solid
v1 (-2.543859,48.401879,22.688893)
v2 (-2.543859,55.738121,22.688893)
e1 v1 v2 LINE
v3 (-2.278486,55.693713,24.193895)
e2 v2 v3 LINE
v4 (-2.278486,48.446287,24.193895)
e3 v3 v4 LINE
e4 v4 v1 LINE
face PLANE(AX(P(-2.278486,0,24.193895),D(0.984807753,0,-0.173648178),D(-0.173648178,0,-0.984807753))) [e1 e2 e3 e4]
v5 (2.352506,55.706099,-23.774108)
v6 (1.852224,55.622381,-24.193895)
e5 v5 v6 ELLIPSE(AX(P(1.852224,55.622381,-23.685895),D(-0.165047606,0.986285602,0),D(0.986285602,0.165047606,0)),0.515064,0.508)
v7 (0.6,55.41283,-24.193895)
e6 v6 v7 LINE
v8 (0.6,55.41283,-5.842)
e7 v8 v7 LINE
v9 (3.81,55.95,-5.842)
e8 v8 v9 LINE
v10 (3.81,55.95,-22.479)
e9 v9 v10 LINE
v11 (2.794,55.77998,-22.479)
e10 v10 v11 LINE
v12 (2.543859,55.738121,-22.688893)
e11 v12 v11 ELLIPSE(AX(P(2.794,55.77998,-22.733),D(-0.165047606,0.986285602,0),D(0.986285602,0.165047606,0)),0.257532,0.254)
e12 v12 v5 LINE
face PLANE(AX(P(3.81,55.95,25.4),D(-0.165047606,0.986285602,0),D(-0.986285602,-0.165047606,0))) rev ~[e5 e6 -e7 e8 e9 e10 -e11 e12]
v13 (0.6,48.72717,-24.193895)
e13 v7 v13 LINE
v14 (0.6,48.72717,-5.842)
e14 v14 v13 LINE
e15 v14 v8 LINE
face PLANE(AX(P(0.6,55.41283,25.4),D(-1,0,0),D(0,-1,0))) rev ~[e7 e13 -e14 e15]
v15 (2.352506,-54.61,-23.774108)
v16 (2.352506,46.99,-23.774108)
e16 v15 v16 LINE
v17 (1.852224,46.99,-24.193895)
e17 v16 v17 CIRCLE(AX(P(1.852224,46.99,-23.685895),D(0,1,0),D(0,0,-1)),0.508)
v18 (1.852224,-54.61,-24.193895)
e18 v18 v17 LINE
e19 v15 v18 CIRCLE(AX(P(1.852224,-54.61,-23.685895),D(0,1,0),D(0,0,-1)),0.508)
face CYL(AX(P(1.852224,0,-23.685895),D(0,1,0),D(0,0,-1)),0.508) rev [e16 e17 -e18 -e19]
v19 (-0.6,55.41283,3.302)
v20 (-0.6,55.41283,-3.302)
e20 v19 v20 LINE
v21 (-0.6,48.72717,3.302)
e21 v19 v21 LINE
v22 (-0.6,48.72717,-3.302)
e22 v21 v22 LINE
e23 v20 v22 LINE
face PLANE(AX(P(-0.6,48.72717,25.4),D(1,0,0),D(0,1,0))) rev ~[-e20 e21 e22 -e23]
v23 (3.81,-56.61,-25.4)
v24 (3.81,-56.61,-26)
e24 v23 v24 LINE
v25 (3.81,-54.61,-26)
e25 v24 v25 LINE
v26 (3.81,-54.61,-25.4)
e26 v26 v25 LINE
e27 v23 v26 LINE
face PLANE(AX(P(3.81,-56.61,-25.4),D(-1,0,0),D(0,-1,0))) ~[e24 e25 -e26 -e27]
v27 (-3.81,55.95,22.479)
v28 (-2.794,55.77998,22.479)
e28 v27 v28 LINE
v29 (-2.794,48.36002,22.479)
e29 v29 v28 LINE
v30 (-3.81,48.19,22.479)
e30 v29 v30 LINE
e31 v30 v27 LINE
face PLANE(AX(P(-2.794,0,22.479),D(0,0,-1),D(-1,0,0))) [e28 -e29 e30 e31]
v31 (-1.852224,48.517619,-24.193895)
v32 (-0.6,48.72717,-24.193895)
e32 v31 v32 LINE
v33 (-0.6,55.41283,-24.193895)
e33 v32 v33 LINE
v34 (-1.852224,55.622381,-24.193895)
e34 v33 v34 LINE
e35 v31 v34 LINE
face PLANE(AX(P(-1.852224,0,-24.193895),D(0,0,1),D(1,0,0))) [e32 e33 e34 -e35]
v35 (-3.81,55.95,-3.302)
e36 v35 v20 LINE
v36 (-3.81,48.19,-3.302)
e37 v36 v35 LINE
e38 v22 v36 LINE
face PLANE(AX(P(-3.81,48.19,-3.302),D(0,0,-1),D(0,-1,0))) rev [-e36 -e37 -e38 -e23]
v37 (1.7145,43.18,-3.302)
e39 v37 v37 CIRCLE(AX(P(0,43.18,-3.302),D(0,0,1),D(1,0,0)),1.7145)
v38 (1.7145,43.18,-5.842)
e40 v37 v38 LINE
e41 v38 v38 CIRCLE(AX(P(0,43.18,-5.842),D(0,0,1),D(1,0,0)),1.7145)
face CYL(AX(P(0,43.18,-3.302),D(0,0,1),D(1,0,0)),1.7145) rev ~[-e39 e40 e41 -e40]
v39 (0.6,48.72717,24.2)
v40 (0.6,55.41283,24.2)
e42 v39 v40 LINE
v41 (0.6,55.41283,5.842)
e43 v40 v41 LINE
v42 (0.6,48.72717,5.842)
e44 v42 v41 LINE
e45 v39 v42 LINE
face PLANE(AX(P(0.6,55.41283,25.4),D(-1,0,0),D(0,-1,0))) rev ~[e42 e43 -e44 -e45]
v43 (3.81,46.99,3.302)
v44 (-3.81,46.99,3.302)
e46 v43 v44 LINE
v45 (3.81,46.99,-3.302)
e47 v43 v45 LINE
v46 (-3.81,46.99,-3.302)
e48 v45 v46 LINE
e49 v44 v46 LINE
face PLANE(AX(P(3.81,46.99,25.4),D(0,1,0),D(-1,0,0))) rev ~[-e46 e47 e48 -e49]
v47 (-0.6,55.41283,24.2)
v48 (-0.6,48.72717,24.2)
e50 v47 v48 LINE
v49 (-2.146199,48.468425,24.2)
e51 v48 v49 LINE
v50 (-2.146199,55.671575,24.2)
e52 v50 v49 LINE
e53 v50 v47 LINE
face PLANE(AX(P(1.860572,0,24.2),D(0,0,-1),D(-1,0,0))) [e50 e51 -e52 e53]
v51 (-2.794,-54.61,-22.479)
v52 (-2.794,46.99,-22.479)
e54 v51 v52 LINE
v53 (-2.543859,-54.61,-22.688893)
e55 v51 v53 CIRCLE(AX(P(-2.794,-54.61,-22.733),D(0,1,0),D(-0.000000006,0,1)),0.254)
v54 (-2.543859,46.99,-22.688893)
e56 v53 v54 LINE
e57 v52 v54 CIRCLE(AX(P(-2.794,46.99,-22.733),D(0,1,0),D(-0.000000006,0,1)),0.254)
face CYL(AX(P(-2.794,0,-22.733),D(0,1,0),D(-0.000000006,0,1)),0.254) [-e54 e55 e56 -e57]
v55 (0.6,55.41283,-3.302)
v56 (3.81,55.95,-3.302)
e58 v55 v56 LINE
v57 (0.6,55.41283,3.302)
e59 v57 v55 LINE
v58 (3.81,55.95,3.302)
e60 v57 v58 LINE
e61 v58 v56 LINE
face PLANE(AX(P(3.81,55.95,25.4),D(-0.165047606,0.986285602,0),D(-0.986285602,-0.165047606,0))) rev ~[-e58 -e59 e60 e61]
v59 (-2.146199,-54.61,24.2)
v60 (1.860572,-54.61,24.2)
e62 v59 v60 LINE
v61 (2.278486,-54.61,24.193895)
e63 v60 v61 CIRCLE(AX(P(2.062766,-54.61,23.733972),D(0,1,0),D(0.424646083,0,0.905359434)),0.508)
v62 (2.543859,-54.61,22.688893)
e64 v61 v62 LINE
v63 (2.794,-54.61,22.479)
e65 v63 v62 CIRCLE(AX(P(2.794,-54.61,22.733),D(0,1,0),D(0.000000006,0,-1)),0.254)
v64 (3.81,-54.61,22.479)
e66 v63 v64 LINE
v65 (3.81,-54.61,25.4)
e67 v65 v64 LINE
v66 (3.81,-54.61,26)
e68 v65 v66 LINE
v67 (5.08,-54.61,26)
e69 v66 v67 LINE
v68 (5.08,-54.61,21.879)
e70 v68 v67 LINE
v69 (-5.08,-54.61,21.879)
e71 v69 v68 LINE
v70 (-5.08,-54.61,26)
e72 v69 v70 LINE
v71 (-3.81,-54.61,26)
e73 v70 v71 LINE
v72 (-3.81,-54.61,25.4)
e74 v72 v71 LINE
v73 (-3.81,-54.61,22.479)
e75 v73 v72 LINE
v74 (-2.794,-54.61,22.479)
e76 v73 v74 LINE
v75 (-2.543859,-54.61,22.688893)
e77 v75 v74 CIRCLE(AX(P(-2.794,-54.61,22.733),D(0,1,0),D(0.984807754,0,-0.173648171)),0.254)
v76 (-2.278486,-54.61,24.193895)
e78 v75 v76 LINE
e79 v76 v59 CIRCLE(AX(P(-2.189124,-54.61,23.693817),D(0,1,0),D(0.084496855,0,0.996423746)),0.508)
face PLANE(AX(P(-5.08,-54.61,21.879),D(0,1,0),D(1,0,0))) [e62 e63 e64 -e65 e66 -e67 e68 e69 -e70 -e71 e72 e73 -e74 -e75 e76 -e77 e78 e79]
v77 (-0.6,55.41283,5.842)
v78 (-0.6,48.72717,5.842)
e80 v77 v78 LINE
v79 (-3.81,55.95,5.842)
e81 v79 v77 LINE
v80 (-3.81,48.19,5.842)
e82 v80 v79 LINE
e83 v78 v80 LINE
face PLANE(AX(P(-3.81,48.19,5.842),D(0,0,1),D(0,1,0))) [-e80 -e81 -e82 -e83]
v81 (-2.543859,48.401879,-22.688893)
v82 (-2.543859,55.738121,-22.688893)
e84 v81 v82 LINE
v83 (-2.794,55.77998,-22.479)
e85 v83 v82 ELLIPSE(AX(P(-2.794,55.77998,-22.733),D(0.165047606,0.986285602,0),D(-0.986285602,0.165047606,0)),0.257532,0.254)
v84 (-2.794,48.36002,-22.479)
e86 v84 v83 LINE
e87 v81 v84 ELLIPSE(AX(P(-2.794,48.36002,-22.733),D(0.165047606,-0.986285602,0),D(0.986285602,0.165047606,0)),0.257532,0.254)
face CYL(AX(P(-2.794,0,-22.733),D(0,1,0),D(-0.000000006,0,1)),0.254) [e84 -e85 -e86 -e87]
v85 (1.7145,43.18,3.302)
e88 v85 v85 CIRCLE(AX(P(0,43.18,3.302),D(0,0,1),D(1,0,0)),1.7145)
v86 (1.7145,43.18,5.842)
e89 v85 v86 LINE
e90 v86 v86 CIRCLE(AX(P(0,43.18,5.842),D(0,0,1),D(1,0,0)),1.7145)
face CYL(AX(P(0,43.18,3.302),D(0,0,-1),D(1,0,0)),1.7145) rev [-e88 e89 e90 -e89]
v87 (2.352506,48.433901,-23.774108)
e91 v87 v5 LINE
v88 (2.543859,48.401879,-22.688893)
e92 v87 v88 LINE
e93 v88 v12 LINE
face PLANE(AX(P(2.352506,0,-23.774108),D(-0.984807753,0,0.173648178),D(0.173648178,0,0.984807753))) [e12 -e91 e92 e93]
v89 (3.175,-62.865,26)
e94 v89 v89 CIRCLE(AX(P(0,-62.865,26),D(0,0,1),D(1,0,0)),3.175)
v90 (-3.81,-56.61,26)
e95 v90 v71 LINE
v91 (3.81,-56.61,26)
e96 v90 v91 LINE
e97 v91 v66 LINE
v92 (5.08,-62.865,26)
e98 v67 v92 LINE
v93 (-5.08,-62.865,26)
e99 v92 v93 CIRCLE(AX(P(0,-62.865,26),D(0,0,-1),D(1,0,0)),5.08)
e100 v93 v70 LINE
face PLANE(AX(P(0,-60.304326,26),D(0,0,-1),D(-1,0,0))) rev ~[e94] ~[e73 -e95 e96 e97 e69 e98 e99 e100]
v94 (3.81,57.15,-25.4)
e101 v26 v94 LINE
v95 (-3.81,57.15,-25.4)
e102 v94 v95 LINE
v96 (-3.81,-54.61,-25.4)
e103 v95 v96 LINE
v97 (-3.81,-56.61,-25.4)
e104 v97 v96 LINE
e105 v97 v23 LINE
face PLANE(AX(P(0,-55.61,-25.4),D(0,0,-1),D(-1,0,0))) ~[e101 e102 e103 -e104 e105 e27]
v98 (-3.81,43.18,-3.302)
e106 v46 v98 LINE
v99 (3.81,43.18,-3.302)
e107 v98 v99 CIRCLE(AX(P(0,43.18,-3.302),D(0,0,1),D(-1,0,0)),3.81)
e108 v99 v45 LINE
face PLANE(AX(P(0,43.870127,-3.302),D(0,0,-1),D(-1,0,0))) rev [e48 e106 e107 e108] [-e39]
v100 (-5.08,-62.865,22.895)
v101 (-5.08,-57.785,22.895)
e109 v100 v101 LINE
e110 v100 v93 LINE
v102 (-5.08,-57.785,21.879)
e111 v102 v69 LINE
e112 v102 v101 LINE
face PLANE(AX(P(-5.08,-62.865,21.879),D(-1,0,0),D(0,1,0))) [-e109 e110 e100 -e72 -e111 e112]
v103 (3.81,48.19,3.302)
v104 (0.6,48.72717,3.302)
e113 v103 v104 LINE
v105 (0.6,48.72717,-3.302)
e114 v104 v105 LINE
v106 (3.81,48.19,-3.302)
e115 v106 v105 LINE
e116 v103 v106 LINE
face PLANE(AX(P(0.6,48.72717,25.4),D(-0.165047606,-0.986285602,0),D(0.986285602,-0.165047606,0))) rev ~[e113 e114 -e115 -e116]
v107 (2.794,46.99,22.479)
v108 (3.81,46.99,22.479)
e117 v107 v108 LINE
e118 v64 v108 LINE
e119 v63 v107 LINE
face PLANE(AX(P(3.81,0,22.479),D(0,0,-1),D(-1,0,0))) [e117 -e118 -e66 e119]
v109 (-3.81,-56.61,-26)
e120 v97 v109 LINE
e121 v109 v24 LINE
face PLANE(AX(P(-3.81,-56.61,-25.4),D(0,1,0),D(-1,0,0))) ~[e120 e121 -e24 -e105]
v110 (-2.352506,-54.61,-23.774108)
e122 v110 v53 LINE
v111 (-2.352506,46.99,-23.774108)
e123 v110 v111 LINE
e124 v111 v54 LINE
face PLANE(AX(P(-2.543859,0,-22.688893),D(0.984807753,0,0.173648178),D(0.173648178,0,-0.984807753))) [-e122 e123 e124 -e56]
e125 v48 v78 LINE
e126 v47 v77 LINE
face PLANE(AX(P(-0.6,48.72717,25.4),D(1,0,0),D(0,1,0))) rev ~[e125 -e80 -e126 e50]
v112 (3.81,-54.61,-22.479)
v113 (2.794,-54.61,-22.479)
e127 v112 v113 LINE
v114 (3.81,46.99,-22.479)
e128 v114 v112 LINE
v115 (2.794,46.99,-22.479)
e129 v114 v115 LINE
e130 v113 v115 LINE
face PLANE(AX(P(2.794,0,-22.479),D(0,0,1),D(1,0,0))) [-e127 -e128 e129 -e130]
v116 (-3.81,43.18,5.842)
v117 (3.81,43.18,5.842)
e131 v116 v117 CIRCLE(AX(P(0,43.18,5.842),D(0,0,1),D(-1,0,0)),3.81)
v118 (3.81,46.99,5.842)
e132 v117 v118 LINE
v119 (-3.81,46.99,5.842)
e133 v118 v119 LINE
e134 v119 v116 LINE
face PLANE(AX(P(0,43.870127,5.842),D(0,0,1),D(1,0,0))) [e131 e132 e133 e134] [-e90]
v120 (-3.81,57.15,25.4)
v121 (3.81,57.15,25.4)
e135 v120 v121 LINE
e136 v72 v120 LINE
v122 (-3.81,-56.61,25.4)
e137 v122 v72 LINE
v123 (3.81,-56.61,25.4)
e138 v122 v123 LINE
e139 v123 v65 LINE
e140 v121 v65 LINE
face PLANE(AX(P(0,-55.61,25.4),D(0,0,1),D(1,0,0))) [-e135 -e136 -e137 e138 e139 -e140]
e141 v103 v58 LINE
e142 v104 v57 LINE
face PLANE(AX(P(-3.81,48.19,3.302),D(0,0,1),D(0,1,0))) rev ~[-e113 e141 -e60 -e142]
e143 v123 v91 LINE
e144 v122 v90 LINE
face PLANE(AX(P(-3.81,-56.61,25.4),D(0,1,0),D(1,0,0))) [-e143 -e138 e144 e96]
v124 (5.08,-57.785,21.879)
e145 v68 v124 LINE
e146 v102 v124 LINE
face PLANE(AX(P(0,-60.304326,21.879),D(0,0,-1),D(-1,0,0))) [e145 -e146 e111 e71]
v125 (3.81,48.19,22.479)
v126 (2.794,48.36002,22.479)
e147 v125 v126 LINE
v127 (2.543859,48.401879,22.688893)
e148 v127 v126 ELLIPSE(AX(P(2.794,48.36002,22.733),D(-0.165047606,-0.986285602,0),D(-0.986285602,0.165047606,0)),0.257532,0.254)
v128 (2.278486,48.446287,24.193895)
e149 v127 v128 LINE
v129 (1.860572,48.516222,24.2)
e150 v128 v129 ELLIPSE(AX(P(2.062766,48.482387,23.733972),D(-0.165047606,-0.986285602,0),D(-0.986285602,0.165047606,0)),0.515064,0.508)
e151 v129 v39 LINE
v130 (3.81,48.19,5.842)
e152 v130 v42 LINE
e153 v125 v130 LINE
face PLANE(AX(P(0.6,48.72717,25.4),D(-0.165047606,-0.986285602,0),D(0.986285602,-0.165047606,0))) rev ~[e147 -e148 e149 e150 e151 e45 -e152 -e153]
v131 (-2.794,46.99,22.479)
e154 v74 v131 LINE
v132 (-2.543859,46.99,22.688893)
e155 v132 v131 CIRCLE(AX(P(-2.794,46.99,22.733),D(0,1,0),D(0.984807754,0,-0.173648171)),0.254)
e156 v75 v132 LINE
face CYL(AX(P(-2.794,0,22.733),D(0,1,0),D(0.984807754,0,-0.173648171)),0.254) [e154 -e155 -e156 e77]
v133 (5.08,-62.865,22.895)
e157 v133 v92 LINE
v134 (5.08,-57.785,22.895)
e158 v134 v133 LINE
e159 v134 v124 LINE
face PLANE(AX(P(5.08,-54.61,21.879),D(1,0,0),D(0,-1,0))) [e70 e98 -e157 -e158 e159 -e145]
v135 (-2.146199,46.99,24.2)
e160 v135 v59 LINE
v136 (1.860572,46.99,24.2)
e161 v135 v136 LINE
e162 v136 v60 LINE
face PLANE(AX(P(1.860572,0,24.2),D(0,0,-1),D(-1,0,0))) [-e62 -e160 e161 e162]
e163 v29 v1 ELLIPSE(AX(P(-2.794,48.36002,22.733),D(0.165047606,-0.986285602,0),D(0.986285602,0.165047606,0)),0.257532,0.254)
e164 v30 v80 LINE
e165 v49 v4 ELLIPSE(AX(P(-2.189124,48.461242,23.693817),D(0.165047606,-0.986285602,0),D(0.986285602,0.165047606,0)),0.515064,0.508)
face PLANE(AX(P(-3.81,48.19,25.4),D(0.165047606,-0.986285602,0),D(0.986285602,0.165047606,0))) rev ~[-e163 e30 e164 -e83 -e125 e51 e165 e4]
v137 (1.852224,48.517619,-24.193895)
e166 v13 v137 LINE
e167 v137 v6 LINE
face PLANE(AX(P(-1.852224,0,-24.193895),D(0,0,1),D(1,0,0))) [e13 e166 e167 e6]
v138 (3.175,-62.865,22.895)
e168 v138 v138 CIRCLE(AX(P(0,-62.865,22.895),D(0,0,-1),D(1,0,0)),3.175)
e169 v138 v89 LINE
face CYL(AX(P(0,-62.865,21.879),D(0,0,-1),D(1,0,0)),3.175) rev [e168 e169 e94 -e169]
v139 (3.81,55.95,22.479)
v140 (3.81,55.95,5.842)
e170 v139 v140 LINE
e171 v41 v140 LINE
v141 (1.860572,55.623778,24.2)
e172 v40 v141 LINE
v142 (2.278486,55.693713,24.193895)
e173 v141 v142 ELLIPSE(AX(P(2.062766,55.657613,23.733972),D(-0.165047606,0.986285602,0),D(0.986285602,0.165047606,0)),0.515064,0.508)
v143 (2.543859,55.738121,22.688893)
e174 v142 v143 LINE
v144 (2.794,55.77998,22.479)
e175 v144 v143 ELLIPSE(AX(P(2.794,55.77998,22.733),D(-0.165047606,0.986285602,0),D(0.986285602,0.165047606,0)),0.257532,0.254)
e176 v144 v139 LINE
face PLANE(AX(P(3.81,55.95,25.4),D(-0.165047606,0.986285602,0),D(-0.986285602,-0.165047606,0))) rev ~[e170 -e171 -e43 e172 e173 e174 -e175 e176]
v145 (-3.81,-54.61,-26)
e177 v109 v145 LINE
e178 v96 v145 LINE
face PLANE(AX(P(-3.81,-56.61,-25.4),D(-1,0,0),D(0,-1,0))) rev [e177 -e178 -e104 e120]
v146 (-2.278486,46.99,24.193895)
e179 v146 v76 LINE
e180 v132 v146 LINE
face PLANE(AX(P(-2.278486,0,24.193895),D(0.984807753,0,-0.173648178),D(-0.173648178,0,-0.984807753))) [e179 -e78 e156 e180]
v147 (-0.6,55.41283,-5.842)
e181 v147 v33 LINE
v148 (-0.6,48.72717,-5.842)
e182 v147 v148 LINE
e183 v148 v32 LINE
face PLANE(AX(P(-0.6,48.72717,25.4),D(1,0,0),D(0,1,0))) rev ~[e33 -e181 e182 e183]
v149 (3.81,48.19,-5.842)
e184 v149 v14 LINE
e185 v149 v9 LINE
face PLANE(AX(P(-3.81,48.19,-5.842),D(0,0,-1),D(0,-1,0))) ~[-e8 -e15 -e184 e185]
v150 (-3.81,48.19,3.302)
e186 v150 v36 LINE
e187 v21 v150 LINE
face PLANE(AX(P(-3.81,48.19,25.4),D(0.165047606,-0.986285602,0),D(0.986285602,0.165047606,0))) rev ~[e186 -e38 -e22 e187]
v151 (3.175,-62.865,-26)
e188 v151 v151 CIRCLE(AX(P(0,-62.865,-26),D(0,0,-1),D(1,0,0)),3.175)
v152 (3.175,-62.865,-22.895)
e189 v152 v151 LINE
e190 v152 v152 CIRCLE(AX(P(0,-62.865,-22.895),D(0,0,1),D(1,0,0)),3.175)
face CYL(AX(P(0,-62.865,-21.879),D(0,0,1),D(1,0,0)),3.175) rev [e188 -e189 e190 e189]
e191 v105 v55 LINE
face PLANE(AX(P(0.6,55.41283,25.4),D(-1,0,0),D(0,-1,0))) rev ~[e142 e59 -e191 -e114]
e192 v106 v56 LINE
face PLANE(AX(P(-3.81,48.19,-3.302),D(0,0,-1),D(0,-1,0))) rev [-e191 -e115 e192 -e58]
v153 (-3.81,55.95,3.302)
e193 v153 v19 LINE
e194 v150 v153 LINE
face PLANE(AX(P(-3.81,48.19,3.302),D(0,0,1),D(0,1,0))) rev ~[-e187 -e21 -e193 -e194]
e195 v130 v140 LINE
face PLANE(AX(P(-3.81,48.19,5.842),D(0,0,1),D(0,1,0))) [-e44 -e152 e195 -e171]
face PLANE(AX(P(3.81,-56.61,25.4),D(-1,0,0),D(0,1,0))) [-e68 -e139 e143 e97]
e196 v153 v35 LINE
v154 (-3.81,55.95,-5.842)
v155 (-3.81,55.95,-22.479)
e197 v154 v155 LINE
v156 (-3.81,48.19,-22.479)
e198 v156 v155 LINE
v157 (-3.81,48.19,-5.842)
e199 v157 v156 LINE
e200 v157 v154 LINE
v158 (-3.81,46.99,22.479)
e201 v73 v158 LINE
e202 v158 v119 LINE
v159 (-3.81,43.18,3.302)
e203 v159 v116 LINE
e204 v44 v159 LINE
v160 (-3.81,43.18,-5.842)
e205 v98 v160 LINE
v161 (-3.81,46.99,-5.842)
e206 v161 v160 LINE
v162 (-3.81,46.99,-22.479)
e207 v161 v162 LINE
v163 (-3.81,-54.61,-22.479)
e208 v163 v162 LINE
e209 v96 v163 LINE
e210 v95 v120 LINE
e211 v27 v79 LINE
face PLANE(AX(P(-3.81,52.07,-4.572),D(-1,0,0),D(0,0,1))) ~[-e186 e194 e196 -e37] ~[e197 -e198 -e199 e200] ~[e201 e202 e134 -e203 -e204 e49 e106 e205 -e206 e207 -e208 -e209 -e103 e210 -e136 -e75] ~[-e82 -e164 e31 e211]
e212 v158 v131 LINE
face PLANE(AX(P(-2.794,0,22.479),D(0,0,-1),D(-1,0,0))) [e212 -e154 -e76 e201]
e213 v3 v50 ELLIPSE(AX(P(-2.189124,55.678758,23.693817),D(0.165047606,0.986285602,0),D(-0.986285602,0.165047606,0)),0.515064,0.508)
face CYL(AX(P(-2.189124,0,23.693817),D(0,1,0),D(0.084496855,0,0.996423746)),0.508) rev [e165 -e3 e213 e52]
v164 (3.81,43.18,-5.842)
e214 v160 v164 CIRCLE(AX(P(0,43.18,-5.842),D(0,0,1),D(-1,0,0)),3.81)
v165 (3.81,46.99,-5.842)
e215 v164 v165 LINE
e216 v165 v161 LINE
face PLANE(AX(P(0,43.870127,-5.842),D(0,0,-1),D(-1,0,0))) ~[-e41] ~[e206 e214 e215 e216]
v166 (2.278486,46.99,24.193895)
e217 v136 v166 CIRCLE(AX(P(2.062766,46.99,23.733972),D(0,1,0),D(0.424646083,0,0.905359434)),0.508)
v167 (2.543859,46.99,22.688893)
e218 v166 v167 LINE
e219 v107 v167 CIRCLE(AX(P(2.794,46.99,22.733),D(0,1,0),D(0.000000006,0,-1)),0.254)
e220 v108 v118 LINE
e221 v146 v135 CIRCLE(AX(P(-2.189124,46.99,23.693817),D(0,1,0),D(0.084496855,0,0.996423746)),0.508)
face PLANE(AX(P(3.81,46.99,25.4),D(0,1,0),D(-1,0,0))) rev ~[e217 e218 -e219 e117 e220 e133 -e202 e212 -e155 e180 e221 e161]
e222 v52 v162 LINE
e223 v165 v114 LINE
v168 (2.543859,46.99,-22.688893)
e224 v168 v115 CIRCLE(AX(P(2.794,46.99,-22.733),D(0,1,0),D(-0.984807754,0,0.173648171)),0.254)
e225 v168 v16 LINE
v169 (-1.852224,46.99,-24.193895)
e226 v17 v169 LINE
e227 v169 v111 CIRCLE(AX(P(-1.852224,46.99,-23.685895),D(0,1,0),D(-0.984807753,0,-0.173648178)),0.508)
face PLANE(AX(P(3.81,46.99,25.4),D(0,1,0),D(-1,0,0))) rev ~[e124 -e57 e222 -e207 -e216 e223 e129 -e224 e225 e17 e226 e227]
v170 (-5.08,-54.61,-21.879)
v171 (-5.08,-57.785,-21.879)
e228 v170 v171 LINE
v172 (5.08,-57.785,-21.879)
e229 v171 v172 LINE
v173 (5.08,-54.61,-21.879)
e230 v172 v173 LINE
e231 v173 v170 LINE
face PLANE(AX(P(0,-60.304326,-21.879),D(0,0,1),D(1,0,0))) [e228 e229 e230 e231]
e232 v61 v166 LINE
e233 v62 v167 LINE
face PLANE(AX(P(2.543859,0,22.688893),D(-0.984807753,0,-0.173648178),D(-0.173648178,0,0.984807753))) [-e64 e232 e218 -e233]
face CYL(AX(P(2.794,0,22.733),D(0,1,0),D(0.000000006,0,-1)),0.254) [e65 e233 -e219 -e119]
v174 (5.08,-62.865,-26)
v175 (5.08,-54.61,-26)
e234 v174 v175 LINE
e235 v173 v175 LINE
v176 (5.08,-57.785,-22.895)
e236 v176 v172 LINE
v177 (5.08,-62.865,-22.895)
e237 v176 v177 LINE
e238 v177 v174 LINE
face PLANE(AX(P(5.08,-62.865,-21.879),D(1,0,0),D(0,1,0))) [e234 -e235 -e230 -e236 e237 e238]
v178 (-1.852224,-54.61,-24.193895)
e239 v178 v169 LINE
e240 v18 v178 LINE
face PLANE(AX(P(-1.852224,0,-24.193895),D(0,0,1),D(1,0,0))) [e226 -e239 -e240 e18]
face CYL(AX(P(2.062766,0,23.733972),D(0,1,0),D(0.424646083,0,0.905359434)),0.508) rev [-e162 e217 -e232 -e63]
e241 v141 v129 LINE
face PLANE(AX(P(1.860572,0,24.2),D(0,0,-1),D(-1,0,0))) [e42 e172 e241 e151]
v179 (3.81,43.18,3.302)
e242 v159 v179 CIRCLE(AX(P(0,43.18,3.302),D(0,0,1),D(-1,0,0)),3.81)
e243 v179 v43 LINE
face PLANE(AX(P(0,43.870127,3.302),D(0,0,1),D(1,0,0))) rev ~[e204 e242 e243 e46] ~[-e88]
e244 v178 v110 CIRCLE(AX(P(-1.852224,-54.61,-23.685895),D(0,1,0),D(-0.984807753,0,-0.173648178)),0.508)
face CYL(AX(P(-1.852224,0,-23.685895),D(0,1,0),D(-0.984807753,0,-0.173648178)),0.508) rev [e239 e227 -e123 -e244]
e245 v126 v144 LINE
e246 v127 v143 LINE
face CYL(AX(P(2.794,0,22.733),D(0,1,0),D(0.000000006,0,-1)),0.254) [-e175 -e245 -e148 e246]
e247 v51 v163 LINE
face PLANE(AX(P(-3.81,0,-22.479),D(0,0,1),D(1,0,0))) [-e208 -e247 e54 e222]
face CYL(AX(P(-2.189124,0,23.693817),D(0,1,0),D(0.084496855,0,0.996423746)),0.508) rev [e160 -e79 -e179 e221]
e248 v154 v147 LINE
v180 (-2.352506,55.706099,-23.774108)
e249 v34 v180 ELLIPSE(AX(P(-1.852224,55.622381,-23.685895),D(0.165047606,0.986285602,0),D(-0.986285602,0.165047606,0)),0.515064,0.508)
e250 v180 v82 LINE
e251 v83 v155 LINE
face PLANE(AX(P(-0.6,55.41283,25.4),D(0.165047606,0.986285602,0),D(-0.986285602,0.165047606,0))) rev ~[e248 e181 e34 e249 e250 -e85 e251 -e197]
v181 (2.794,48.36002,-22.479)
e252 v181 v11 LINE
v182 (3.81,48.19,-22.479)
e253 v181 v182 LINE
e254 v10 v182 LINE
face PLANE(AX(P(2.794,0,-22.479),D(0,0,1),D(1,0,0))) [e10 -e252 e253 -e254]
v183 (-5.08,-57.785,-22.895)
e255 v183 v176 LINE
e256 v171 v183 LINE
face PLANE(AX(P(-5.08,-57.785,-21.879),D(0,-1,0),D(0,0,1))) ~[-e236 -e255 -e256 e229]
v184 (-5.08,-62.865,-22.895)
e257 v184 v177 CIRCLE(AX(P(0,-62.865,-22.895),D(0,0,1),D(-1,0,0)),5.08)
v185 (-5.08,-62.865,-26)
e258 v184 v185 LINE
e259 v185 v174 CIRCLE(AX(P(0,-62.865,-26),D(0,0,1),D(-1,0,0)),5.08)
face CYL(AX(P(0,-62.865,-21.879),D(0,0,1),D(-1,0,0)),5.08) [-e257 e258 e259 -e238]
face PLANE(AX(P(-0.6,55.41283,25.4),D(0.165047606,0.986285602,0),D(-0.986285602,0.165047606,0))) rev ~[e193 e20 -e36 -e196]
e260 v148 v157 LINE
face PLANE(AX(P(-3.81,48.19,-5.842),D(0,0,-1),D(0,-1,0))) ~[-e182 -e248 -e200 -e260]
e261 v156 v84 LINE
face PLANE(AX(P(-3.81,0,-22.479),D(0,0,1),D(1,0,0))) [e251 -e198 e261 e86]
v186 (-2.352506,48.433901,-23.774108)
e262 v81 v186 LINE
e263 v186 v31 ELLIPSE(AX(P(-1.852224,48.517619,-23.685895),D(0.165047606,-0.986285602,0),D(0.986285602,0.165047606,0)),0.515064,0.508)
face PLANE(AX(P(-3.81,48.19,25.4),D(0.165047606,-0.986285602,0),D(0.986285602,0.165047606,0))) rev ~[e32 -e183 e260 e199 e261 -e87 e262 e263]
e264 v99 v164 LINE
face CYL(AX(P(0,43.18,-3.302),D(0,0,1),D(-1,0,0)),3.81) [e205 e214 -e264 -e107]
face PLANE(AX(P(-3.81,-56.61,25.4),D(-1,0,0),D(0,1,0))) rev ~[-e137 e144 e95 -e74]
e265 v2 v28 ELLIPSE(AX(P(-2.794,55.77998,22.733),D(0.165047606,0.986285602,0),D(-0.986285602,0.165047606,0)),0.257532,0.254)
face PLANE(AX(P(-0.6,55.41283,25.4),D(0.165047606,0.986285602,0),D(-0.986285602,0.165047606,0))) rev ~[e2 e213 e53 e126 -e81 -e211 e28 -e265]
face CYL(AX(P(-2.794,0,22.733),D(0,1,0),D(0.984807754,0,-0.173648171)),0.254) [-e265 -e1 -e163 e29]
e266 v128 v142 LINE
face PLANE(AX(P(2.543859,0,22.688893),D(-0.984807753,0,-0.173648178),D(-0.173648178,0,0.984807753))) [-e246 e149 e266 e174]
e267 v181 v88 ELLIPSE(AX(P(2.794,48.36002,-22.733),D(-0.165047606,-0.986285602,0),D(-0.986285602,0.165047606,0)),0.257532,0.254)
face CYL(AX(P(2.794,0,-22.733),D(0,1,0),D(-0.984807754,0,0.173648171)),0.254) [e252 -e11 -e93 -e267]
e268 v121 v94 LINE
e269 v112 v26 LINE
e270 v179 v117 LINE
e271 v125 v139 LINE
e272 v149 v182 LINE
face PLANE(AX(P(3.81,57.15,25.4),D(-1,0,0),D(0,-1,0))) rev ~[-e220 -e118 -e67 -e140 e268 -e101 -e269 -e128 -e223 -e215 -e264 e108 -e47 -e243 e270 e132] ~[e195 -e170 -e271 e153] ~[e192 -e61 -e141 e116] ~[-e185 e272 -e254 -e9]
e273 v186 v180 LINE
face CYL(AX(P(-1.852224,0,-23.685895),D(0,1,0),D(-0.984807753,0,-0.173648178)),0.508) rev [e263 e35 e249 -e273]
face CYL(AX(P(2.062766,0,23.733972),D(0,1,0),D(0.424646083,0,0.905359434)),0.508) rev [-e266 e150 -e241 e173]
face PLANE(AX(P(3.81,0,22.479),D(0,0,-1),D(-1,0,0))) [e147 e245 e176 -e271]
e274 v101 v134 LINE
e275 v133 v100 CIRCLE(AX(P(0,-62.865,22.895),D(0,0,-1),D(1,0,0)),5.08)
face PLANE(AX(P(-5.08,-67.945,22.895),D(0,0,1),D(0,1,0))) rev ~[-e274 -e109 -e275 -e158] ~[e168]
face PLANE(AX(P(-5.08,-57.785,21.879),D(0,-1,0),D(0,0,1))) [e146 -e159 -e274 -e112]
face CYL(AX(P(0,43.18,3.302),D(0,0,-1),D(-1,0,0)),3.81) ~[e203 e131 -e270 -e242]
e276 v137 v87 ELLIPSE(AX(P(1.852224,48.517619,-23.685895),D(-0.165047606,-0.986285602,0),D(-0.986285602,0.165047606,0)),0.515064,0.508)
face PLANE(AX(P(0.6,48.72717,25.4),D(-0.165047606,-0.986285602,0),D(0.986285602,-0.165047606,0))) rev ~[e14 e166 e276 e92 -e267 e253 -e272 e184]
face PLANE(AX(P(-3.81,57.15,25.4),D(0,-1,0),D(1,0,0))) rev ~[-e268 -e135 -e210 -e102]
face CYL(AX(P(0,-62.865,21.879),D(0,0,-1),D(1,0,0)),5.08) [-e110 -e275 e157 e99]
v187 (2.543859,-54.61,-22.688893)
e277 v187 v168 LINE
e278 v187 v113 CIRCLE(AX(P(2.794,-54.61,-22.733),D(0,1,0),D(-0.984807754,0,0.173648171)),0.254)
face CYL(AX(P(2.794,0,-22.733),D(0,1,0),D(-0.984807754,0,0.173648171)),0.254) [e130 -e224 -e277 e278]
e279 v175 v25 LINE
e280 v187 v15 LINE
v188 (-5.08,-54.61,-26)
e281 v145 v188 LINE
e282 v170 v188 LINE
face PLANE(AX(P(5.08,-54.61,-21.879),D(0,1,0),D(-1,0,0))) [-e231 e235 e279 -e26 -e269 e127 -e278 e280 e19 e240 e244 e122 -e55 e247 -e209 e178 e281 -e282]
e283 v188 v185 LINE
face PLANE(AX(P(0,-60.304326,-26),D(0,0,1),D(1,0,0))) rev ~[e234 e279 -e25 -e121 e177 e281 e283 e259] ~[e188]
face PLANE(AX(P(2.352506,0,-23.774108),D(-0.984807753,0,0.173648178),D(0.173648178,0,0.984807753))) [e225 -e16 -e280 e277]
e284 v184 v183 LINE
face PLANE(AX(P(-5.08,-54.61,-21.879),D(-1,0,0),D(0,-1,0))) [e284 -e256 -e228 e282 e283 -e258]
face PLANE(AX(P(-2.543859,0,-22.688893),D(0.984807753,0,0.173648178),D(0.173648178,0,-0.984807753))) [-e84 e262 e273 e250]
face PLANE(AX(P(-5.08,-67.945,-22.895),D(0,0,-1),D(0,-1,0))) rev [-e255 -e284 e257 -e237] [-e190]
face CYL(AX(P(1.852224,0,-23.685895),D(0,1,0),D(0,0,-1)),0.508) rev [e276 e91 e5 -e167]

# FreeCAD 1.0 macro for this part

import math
import FreeCAD as App
import Part
import Sketcher

V = App.Vector
Q = App.Units.Quantity


def add_polygon(sketch, points):
    """Adds a closed chain of lines whose ends are joined by coincident constraints."""
    first, n = sketch.GeometryCount, len(points)
    for a, b in zip(points, points[1:] + points[:1]):
        sketch.addGeometry(Part.LineSegment(App.Vector(*a, 0), App.Vector(*b, 0)), False)
    for i in range(n):
        sketch.addConstraint(Sketcher.Constraint("Coincident", first + i, 2, first + (i + 1) % n, 1))

doc = App.newDocument("Part")
params = doc.addObject("Spreadsheet::Sheet", "Params")
for row, (alias, value) in enumerate([
    ("sketch1_radius", "0.01 in"),
    ("sketch1_radius2", "0.02 in"),
    ("sketch1_width", "0.3 in"),
    ("sketch1_width2", "0.04 in"),
    ("sketch1_height", "0.115 in"),
    ("pad1_length", "4.5 in"),
    ("sketch2_radius", "0.01 in"),
    ("sketch2_radius2", "0.02 in"),
    ("sketch2_width", "0.3 in"),
    ("sketch2_width2", "0.04 in"),
    ("sketch2_height", "0.115 in"),
    ("pad2_length", "4.5 in"),
    ("sketch3_width", "0.3 in"),
    ("pad3_length", "2 in"),
    ("sketch4_radius", "0.2 in"),
    ("sketch4_diameter", "0.25 in"),
    ("sketch4_height", "0.325 in"),
    ("pad4_length", "0.6 mm"),
    ("pad4_length2", "3.521 mm"),
    ("sketch5_width", "0.4 in"),
    ("sketch5_height", "0.04 in"),
    ("sketch6_width", "0.3 in"),
    ("sketch7_radius", "0.2 in"),
    ("sketch7_diameter", "0.25 in"),
    ("sketch7_height", "0.325 in"),
    ("pad5_length", "0.6 mm"),
    ("pad5_length2", "3.521 mm"),
    ("sketch8_radius", "0.15 in"),
    ("sketch8_diameter", "0.135 in"),
    ("sketch8_height", "0.15 in"),
    ("pad6_length", "0.1 in"),
    ("sketch9_height", "0.1 in"),
    ("pad7_length", "0.3 in"),
], start=1):
    params.set(f"A{row}", alias)
    params.set(f"B{row}", "=" + value)
    params.setAlias(f"B{row}", alias)

body = doc.addObject("PartDesign::Body", "Body")

sketch1 = body.newObject("Sketcher::SketchObject", "Sketch")
sketch1.AttachmentSupport = (doc.getObject("XZ_Plane"), [""])
sketch1.MapMode = "FlatFace"
sketch1.addGeometry(Part.LineSegment(V(-3.81, -25.4, 0), V(-3.81, -22.48, 0)), False)
sketch1.addGeometry(Part.LineSegment(V(-3.81, -22.48, 0), V(-2.79, -22.48, 0)), False)
sketch1.addGeometry(Part.ArcOfCircle(Part.Circle(V(-2.79, -22.73, 0), V(0, 0, 1), 0.25), math.radians(10), math.radians(90)), False)
sketch1.addGeometry(Part.LineSegment(V(-2.54, -22.69, 0), V(-2.35, -23.77, 0)), False)
sketch1.addGeometry(Part.ArcOfCircle(Part.Circle(V(-1.85, -23.69, 0), V(0, 0, 1), 0.51), math.radians(-170), math.radians(-90)), False)
sketch1.addGeometry(Part.LineSegment(V(-1.85, -24.19, 0), V(1.85, -24.19, 0)), False)
sketch1.addGeometry(Part.ArcOfCircle(Part.Circle(V(1.85, -23.69, 0), V(0, 0, 1), 0.51), math.radians(-90), math.radians(-10)), False)
sketch1.addGeometry(Part.LineSegment(V(2.35, -23.77, 0), V(2.54, -22.69, 0)), False)
sketch1.addGeometry(Part.ArcOfCircle(Part.Circle(V(2.79, -22.73, 0), V(0, 0, 1), 0.25), math.radians(90), math.radians(170)), False)
sketch1.addGeometry(Part.LineSegment(V(2.79, -22.48, 0), V(3.81, -22.48, 0)), False)
sketch1.addGeometry(Part.LineSegment(V(3.81, -22.48, 0), V(3.81, -25.4, 0)), False)
sketch1.addGeometry(Part.LineSegment(V(3.81, -25.4, 0), V(-3.81, -25.4, 0)), False)
sketch1.addConstraint(Sketcher.Constraint("Coincident", 0, 2, 1, 1))
sketch1.addConstraint(Sketcher.Constraint("Tangent", 1, 2, 2, 2))
sketch1.addConstraint(Sketcher.Constraint("Tangent", 2, 1, 3, 1))
sketch1.addConstraint(Sketcher.Constraint("Tangent", 3, 2, 4, 1))
sketch1.addConstraint(Sketcher.Constraint("Tangent", 4, 2, 5, 1))
sketch1.addConstraint(Sketcher.Constraint("Tangent", 5, 2, 6, 1))
sketch1.addConstraint(Sketcher.Constraint("Tangent", 6, 2, 7, 1))
sketch1.addConstraint(Sketcher.Constraint("Tangent", 7, 2, 8, 2))
sketch1.addConstraint(Sketcher.Constraint("Tangent", 8, 1, 9, 1))
sketch1.addConstraint(Sketcher.Constraint("Coincident", 9, 2, 10, 1))
sketch1.addConstraint(Sketcher.Constraint("Coincident", 10, 2, 11, 1))
sketch1.addConstraint(Sketcher.Constraint("Coincident", 11, 2, 0, 1))
sketch1.addConstraint(Sketcher.Constraint("Vertical", 0))
sketch1.addConstraint(Sketcher.Constraint("Horizontal", 1))
sketch1.addConstraint(Sketcher.Constraint("Horizontal", 5))
sketch1.addConstraint(Sketcher.Constraint("Horizontal", 9))
sketch1.addConstraint(Sketcher.Constraint("Vertical", 10))
sketch1.addConstraint(Sketcher.Constraint("Horizontal", 11))
sketch1.addConstraint(Sketcher.Constraint("Equal", 4, 6))
sketch1.addConstraint(Sketcher.Constraint("Equal", 2, 8))
sketch1.addConstraint(Sketcher.Constraint("Symmetric", 2, 3, 8, 3, -2))
sketch1.addConstraint(Sketcher.Constraint("Horizontal", 3, 2, 6, 2))
sketch1.addConstraint(Sketcher.Constraint("Equal", 1, 9))
sketch1.addConstraint(Sketcher.Constraint("Radius", 2, Q("0.01 in")))
sketch1.addConstraint(Sketcher.Constraint("Radius", 4, Q("0.02 in")))
sketch1.addConstraint(Sketcher.Constraint("DistanceX", 11, 2, 11, 1, Q("0.3 in")))
sketch1.addConstraint(Sketcher.Constraint("DistanceY", 10, 2, -1, 1, Q("1 in")))
sketch1.addConstraint(Sketcher.Constraint("Angle", 3, Q("-80 deg")))
sketch1.addConstraint(Sketcher.Constraint("DistanceX", 1, 1, 1, 2, Q("0.04 in")))
sketch1.addConstraint(Sketcher.Constraint("DistanceY", 0, 1, 0, 2, Q("0.115 in")))
sketch1.addConstraint(Sketcher.Constraint("DistanceY", 4, 3, 2, 1, Q("0.997002 mm")))
sketch1.setExpression("Constraints[23]", "Params.sketch1_radius")
sketch1.setExpression("Constraints[24]", "Params.sketch1_radius2")
sketch1.setExpression("Constraints[25]", "Params.sketch1_width")
sketch1.setExpression("Constraints[28]", "Params.sketch1_width2")
sketch1.setExpression("Constraints[29]", "Params.sketch1_height")
pad1 = body.newObject("PartDesign::Pad", "Pad")
pad1.Profile = sketch1
pad1.setExpression("Length", "Params.pad1_length")
pad1.Midplane = True
body2 = doc.addObject("PartDesign::Body", "Body001")

sketch2 = body2.newObject("Sketcher::SketchObject", "Sketch001")
sketch2.AttachmentSupport = (doc.getObject("XZ_Plane001"), [""])
sketch2.MapMode = "FlatFace"
sketch2.addGeometry(Part.LineSegment(V(-2.28, 24.19, 0), V(-2.54, 22.69, 0)), False)
sketch2.addGeometry(Part.ArcOfCircle(Part.Circle(V(-2.79, 22.73, 0), V(0, 0, 1), 0.25), math.radians(-90), math.radians(-10)), False)
sketch2.addGeometry(Part.LineSegment(V(-2.79, 22.48, 0), V(-3.81, 22.48, 0)), False)
sketch2.addGeometry(Part.LineSegment(V(-3.81, 22.48, 0), V(-3.81, 25.4, 0)), False)
sketch2.addGeometry(Part.LineSegment(V(-3.81, 25.4, 0), V(3.81, 25.4, 0)), False)
sketch2.addGeometry(Part.LineSegment(V(3.81, 25.4, 0), V(3.81, 22.48, 0)), False)
sketch2.addGeometry(Part.LineSegment(V(3.81, 22.48, 0), V(2.79, 22.48, 0)), False)
sketch2.addGeometry(Part.ArcOfCircle(Part.Circle(V(2.79, 22.73, 0), V(0, 0, 1), 0.25), math.radians(-170), math.radians(-90)), False)
sketch2.addGeometry(Part.LineSegment(V(2.54, 22.69, 0), V(2.28, 24.19, 0)), False)
sketch2.addGeometry(Part.ArcOfCircle(Part.Circle(V(2.06, 23.73, 0), V(0, 0, 1), 0.51), math.radians(65), math.radians(113)), False)
sketch2.addGeometry(Part.LineSegment(V(1.86, 24.2, 0), V(-2.15, 24.2, 0)), False)
sketch2.addGeometry(Part.ArcOfCircle(Part.Circle(V(-2.19, 23.69, 0), V(0, 0, 1), 0.51), math.radians(85.15), math.radians(100.13)), False)
sketch2.addConstraint(Sketcher.Constraint("Tangent", 0, 2, 1, 2))
sketch2.addConstraint(Sketcher.Constraint("Tangent", 1, 1, 2, 1))
sketch2.addConstraint(Sketcher.Constraint("Coincident", 2, 2, 3, 1))
sketch2.addConstraint(Sketcher.Constraint("Coincident", 3, 2, 4, 1))
sketch2.addConstraint(Sketcher.Constraint("Coincident", 4, 2, 5, 1))
sketch2.addConstraint(Sketcher.Constraint("Coincident", 5, 2, 6, 1))
sketch2.addConstraint(Sketcher.Constraint("Tangent", 6, 2, 7, 2))
sketch2.addConstraint(Sketcher.Constraint("Tangent", 7, 1, 8, 1))
sketch2.addConstraint(Sketcher.Constraint("Coincident", 8, 2, 9, 1))
sketch2.addConstraint(Sketcher.Constraint("Coincident", 9, 2, 10, 1))
sketch2.addConstraint(Sketcher.Constraint("Coincident", 10, 2, 11, 1))
sketch2.addConstraint(Sketcher.Constraint("Coincident", 11, 2, 0, 1))
sketch2.addConstraint(Sketcher.Constraint("Horizontal", 2))
sketch2.addConstraint(Sketcher.Constraint("Vertical", 3))
sketch2.addConstraint(Sketcher.Constraint("Horizontal", 4))
sketch2.addConstraint(Sketcher.Constraint("Vertical", 5))
sketch2.addConstraint(Sketcher.Constraint("Horizontal", 6))
sketch2.addConstraint(Sketcher.Constraint("Horizontal", 10))
sketch2.addConstraint(Sketcher.Constraint("Equal", 1, 7))
sketch2.addConstraint(Sketcher.Constraint("Equal", 9, 11))
sketch2.addConstraint(Sketcher.Constraint("Symmetric", 1, 3, 7, 3, -2))
sketch2.addConstraint(Sketcher.Constraint("Symmetric", 8, 2, 11, 2, -2))
sketch2.addConstraint(Sketcher.Constraint("Equal", 2, 6))
sketch2.addConstraint(Sketcher.Constraint("Radius", 1, Q("0.01 in")))
sketch2.addConstraint(Sketcher.Constraint("Radius", 9, Q("0.02 in")))
sketch2.addConstraint(Sketcher.Constraint("DistanceX", 4, 1, 4, 2, Q("0.3 in")))
sketch2.addConstraint(Sketcher.Constraint("DistanceY", -1, 1, 3, 2, Q("1 in")))
sketch2.addConstraint(Sketcher.Constraint("Angle", 0, Q("-100 deg")))
sketch2.addConstraint(Sketcher.Constraint("DistanceX", 2, 2, 2, 1, Q("0.04 in")))
sketch2.addConstraint(Sketcher.Constraint("DistanceY", 3, 1, 3, 2, Q("0.115 in")))
sketch2.addConstraint(Sketcher.Constraint("DistanceX", 10, 2, 10, 1, Q("4.006772 mm")))
sketch2.addConstraint(Sketcher.Constraint("DistanceY", -1, 1, 9, 2, Q("24.2 mm")))
sketch2.addConstraint(Sketcher.Constraint("DistanceX", 10, 2, -1, 1, Q("2.146199 mm")))
sketch2.addConstraint(Sketcher.Constraint("DistanceY", 7, 1, 8, 2, Q("1.505002 mm")))
sketch2.setExpression("Constraints[23]", "Params.sketch2_radius")
sketch2.setExpression("Constraints[24]", "Params.sketch2_radius2")
sketch2.setExpression("Constraints[25]", "Params.sketch2_width")
sketch2.setExpression("Constraints[28]", "Params.sketch2_width2")
sketch2.setExpression("Constraints[29]", "Params.sketch2_height")
pad2 = body2.newObject("PartDesign::Pad", "Pad001")
pad2.Profile = sketch2
pad2.setExpression("Length", "Params.pad2_length")
pad2.Midplane = True
body.AllowCompound = True
doc.recompute()

boolean = body.newObject("PartDesign::Boolean", "Boolean")
boolean.Type = "Fuse"
boolean.addObjects([body2])

sketch3 = body.newObject("Sketcher::SketchObject", "Sketch002")
sketch3.AttachmentSupport = (doc.getObject("XY_Plane"), [""])
sketch3.MapMode = "FlatFace"
sketch3.AttachmentOffset = App.Placement(V(0, 0, 1 * 25.4), App.Rotation())
add_polygon(sketch3, [(3.8, 57.1), (-3.8, 57.1), (-3.8, 56), (-0.6, 55.4), (-0.6, 48.7), (-3.8, 48.2), (-3.8, 47), (3.8, 47), (3.8, 48.2), (0.6, 48.7), (0.6, 55.4), (3.8, 56)])
sketch3.addConstraint(Sketcher.Constraint("Horizontal", 0))
sketch3.addConstraint(Sketcher.Constraint("Vertical", 1))
sketch3.addConstraint(Sketcher.Constraint("Vertical", 3))
sketch3.addConstraint(Sketcher.Constraint("Vertical", 5))
sketch3.addConstraint(Sketcher.Constraint("Horizontal", 6))
sketch3.addConstraint(Sketcher.Constraint("Vertical", 7))
sketch3.addConstraint(Sketcher.Constraint("Vertical", 9))
sketch3.addConstraint(Sketcher.Constraint("Vertical", 11))
sketch3.addConstraint(Sketcher.Constraint("Symmetric", 4, 2, 7, 2, -2))
sketch3.addConstraint(Sketcher.Constraint("Symmetric", 3, 2, 8, 2, -2))
sketch3.addConstraint(Sketcher.Constraint("Symmetric", 1, 2, 10, 2, -2))
sketch3.addConstraint(Sketcher.Constraint("Parallel", 2, 8))
sketch3.addConstraint(Sketcher.Constraint("Parallel", 4, 10))
sketch3.addConstraint(Sketcher.Constraint("Vertical", 1, 2, 4, 2))
sketch3.addConstraint(Sketcher.Constraint("Equal", 1, 5))
sketch3.addConstraint(Sketcher.Constraint("DistanceX", 0, 2, 0, 1, Q("0.3 in")))
sketch3.addConstraint(Sketcher.Constraint("Angle", 2, Q("-9.5 deg")))
sketch3.addConstraint(Sketcher.Constraint("DistanceY", 5, 2, 0, 2, Q("0.4 in")))
sketch3.addConstraint(Sketcher.Constraint("DistanceY", -1, 1, 0, 2, Q("2.25 in")))
sketch3.addConstraint(Sketcher.Constraint("DistanceY", 1, 2, 1, 1, Q("1.2 mm")))
sketch3.addConstraint(Sketcher.Constraint("DistanceY", 3, 2, 3, 1, Q("6.68566 mm")))
sketch3.setExpression("Constraints[27]", "Params.sketch3_width")
pad3 = body.newObject("PartDesign::Pad", "Pad002")
pad3.Profile = sketch3
pad3.setExpression("Length", "Params.pad3_length")
pad3.Reversed = True

sketch4 = body.newObject("Sketcher::SketchObject", "Sketch003")
sketch4.AttachmentSupport = (doc.getObject("XY_Plane"), [""])
sketch4.MapMode = "FlatFace"
sketch4.AttachmentOffset = App.Placement(V(0, 0, 1 * 25.4), App.Rotation())
sketch4.addGeometry(Part.LineSegment(V(5.1, -54.6, 0), V(-5.1, -54.6, 0)), False)
sketch4.addGeometry(Part.LineSegment(V(-5.1, -54.6, 0), V(-5.1, -62.9, 0)), False)
sketch4.addGeometry(Part.ArcOfCircle(Part.Circle(V(0, -62.9, 0), V(0, 0, 1), 5.1), math.radians(180), math.radians(360)), False)
sketch4.addGeometry(Part.LineSegment(V(5.1, -62.9, 0), V(5.1, -54.6, 0)), False)
sketch4.addGeometry(Part.Circle(V(0, -62.9, 0), V(0, 0, 1), 3.2), False)
sketch4.addConstraint(Sketcher.Constraint("Coincident", 0, 2, 1, 1))
sketch4.addConstraint(Sketcher.Constraint("Tangent", 1, 2, 2, 1))
sketch4.addConstraint(Sketcher.Constraint("Tangent", 2, 2, 3, 1))
sketch4.addConstraint(Sketcher.Constraint("Coincident", 3, 2, 0, 1))
sketch4.addConstraint(Sketcher.Constraint("Horizontal", 0))
sketch4.addConstraint(Sketcher.Constraint("Vertical", 1))
sketch4.addConstraint(Sketcher.Constraint("Vertical", 3))
sketch4.addConstraint(Sketcher.Constraint("Coincident", 4, 3, 2, 3))
sketch4.addConstraint(Sketcher.Constraint("PointOnObject", 2, 3, -2))
sketch4.addConstraint(Sketcher.Constraint("Radius", 2, Q("0.2 in")))
sketch4.addConstraint(Sketcher.Constraint("Diameter", 4, Q("0.25 in")))
sketch4.addConstraint(Sketcher.Constraint("DistanceY", 1, 2, 1, 1, Q("0.325 in")))
sketch4.addConstraint(Sketcher.Constraint("DistanceY", 0, 2, -1, 1, Q("2.15 in")))
sketch4.setExpression("Constraints[9]", "Params.sketch4_radius")
sketch4.setExpression("Constraints[10]", "Params.sketch4_diameter")
sketch4.setExpression("Constraints[11]", "Params.sketch4_height")
pad4 = body.newObject("PartDesign::Pad", "Pad003")
pad4.Profile = sketch4
pad4.Type = "TwoLengths"
pad4.setExpression("Length", "Params.pad4_length")
pad4.setExpression("Length2", "Params.pad4_length2")

sketch5 = body.newObject("Sketcher::SketchObject", "Sketch004")
sketch5.AttachmentSupport = (doc.getObject("YZ_Plane"), [""])
sketch5.MapMode = "FlatFace"
sketch5.AttachmentOffset = App.Placement(V(0, 0, -0.2 * 25.4), App.Rotation())
add_polygon(sketch5, [(-57.8, 21.9), (-67.9, 21.9), (-67.9, 22.9), (-57.8, 22.9)])
sketch5.addConstraint(Sketcher.Constraint("Horizontal", 0))
sketch5.addConstraint(Sketcher.Constraint("Vertical", 1))
sketch5.addConstraint(Sketcher.Constraint("Horizontal", 2))
sketch5.addConstraint(Sketcher.Constraint("Vertical", 3))
sketch5.addConstraint(Sketcher.Constraint("DistanceX", 0, 2, 0, 1, Q("0.4 in")))
sketch5.addConstraint(Sketcher.Constraint("DistanceY", 1, 1, 1, 2, Q("0.04 in")))
sketch5.addConstraint(Sketcher.Constraint("DistanceX", 0, 2, -1, 1, Q("2.675 in")))
sketch5.addConstraint(Sketcher.Constraint("DistanceY", -1, 1, 0, 2, Q("21.879 mm")))
sketch5.setExpression("Constraints[8]", "Params.sketch5_width")
sketch5.setExpression("Constraints[9]", "Params.sketch5_height")
pocket1 = body.newObject("PartDesign::Pocket", "Pocket")
pocket1.Profile = sketch5
pocket1.Type = "ThroughAll"
pocket1.Reversed = True

sketch6 = body.newObject("Sketcher::SketchObject", "Sketch005")
sketch6.AttachmentSupport = (doc.getObject("XY_Plane"), [""])
sketch6.MapMode = "FlatFace"
sketch6.AttachmentOffset = App.Placement(V(0, 0, 1 * 25.4), App.Rotation())
add_polygon(sketch6, [(-3.8, -54.6), (-3.8, -56.6), (3.8, -56.6), (3.8, -54.6)])
sketch6.addConstraint(Sketcher.Constraint("Vertical", 0))
sketch6.addConstraint(Sketcher.Constraint("Horizontal", 1))
sketch6.addConstraint(Sketcher.Constraint("Vertical", 2))
sketch6.addConstraint(Sketcher.Constraint("Horizontal", 3))
sketch6.addConstraint(Sketcher.Constraint("DistanceX", 1, 1, 1, 2, Q("0.3 in")))
sketch6.addConstraint(Sketcher.Constraint("DistanceX", 0, 2, -1, 1, Q("0.15 in")))
sketch6.addConstraint(Sketcher.Constraint("DistanceY", 2, 2, -1, 1, Q("2.15 in")))
sketch6.addConstraint(Sketcher.Constraint("DistanceY", 0, 2, 0, 1, Q("2 mm")))
sketch6.setExpression("Constraints[8]", "Params.sketch6_width")
pocket2 = body.newObject("PartDesign::Pocket", "Pocket001")
pocket2.Profile = sketch6
pocket2.Type = "ThroughAll"
pocket2.Reversed = True

sketch7 = body.newObject("Sketcher::SketchObject", "Sketch006")
sketch7.AttachmentSupport = (doc.getObject("XY_Plane"), [""])
sketch7.MapMode = "FlatFace"
sketch7.AttachmentOffset = App.Placement(V(0, 0, -1 * 25.4), App.Rotation())
sketch7.addGeometry(Part.LineSegment(V(-5.1, -54.6, 0), V(5.1, -54.6, 0)), False)
sketch7.addGeometry(Part.LineSegment(V(5.1, -54.6, 0), V(5.1, -62.9, 0)), False)
sketch7.addGeometry(Part.ArcOfCircle(Part.Circle(V(0, -62.9, 0), V(0, 0, 1), 5.1), math.radians(180), math.radians(360)), False)
sketch7.addGeometry(Part.LineSegment(V(-5.1, -62.9, 0), V(-5.1, -54.6, 0)), False)
sketch7.addGeometry(Part.Circle(V(0, -62.9, 0), V(0, 0, 1), 3.2), False)
sketch7.addConstraint(Sketcher.Constraint("Coincident", 0, 2, 1, 1))
sketch7.addConstraint(Sketcher.Constraint("Tangent", 1, 2, 2, 2))
sketch7.addConstraint(Sketcher.Constraint("Tangent", 2, 1, 3, 1))
sketch7.addConstraint(Sketcher.Constraint("Coincident", 3, 2, 0, 1))
sketch7.addConstraint(Sketcher.Constraint("Horizontal", 0))
sketch7.addConstraint(Sketcher.Constraint("Vertical", 1))
sketch7.addConstraint(Sketcher.Constraint("Vertical", 3))
sketch7.addConstraint(Sketcher.Constraint("Coincident", 4, 3, 2, 3))
sketch7.addConstraint(Sketcher.Constraint("PointOnObject", 2, 3, -2))
sketch7.addConstraint(Sketcher.Constraint("Radius", 2, Q("0.2 in")))
sketch7.addConstraint(Sketcher.Constraint("Diameter", 4, Q("0.25 in")))
sketch7.addConstraint(Sketcher.Constraint("DistanceY", 1, 2, 1, 1, Q("0.325 in")))
sketch7.addConstraint(Sketcher.Constraint("DistanceY", 0, 2, -1, 1, Q("2.15 in")))
sketch7.setExpression("Constraints[9]", "Params.sketch7_radius")
sketch7.setExpression("Constraints[10]", "Params.sketch7_diameter")
sketch7.setExpression("Constraints[11]", "Params.sketch7_height")
pad5 = body.newObject("PartDesign::Pad", "Pad004")
pad5.Profile = sketch7
pad5.Type = "TwoLengths"
pad5.setExpression("Length", "Params.pad5_length")
pad5.setExpression("Length2", "Params.pad5_length2")
pad5.Reversed = True
doc.recompute()

mirrored = body.newObject("PartDesign::Mirrored", "Mirrored")
mirrored.Originals = [pocket1]
mirrored.MirrorPlane = (doc.getObject("XY_Plane"), [""])
body.Tip = mirrored
doc.recompute()

mirrored2 = body.newObject("PartDesign::Mirrored", "Mirrored001")
mirrored2.Originals = [pocket2]
mirrored2.MirrorPlane = (doc.getObject("XY_Plane"), [""])
body.Tip = mirrored2

sketch8 = body.newObject("Sketcher::SketchObject", "Sketch007")
sketch8.AttachmentSupport = (doc.getObject("XY_Plane"), [""])
sketch8.MapMode = "FlatFace"
sketch8.AttachmentOffset = App.Placement(V(0, 0, 0.13 * 25.4), App.Rotation())
sketch8.addGeometry(Part.LineSegment(V(3.8, 43.2, 0), V(3.8, 47, 0)), False)
sketch8.addGeometry(Part.LineSegment(V(3.8, 47, 0), V(-3.8, 47, 0)), False)
sketch8.addGeometry(Part.LineSegment(V(-3.8, 47, 0), V(-3.8, 43.2, 0)), False)
sketch8.addGeometry(Part.ArcOfCircle(Part.Circle(V(0, 43.2, 0), V(0, 0, 1), 3.8), math.radians(180), math.radians(360)), False)
sketch8.addGeometry(Part.Circle(V(0, 43.2, 0), V(0, 0, 1), 1.7), False)
sketch8.addConstraint(Sketcher.Constraint("Coincident", 0, 2, 1, 1))
sketch8.addConstraint(Sketcher.Constraint("Coincident", 1, 2, 2, 1))
sketch8.addConstraint(Sketcher.Constraint("Tangent", 2, 2, 3, 1))
sketch8.addConstraint(Sketcher.Constraint("Tangent", 3, 2, 0, 1))
sketch8.addConstraint(Sketcher.Constraint("Vertical", 0))
sketch8.addConstraint(Sketcher.Constraint("Horizontal", 1))
sketch8.addConstraint(Sketcher.Constraint("Vertical", 2))
sketch8.addConstraint(Sketcher.Constraint("Coincident", 4, 3, 3, 3))
sketch8.addConstraint(Sketcher.Constraint("PointOnObject", 3, 3, -2))
sketch8.addConstraint(Sketcher.Constraint("Radius", 3, Q("0.15 in")))
sketch8.addConstraint(Sketcher.Constraint("Diameter", 4, Q("0.135 in")))
sketch8.addConstraint(Sketcher.Constraint("DistanceY", 0, 1, 0, 2, Q("0.15 in")))
sketch8.addConstraint(Sketcher.Constraint("DistanceY", -1, 1, 3, 3, Q("1.7 in")))
sketch8.setExpression("Constraints[9]", "Params.sketch8_radius")
sketch8.setExpression("Constraints[10]", "Params.sketch8_diameter")
sketch8.setExpression("Constraints[11]", "Params.sketch8_height")
pad6 = body.newObject("PartDesign::Pad", "Pad005")
pad6.Profile = sketch8
pad6.setExpression("Length", "Params.pad6_length")
doc.recompute()

mirrored3 = body.newObject("PartDesign::Mirrored", "Mirrored002")
mirrored3.Originals = [pad6]
mirrored3.MirrorPlane = (doc.getObject("XY_Plane"), [""])
body.Tip = mirrored3

sketch9 = body.newObject("Sketcher::SketchObject", "Sketch008")
sketch9.AttachmentSupport = (doc.getObject("YZ_Plane"), [""])
sketch9.MapMode = "FlatFace"
sketch9.AttachmentOffset = App.Placement(V(0, 0, -0.15 * 25.4), App.Rotation())
add_polygon(sketch9, [(56, 3.3), (48.2, 3.3), (48.2, 5.8), (56, 5.8)])
sketch9.addConstraint(Sketcher.Constraint("Horizontal", 0))
sketch9.addConstraint(Sketcher.Constraint("Vertical", 1))
sketch9.addConstraint(Sketcher.Constraint("Horizontal", 2))
sketch9.addConstraint(Sketcher.Constraint("Vertical", 3))
sketch9.addConstraint(Sketcher.Constraint("DistanceY", 1, 1, 1, 2, Q("0.1 in")))
sketch9.addConstraint(Sketcher.Constraint("DistanceY", -1, 1, 0, 2, Q("0.13 in")))
sketch9.addConstraint(Sketcher.Constraint("DistanceX", 0, 2, 0, 1, Q("7.76 mm")))
sketch9.addConstraint(Sketcher.Constraint("DistanceX", -1, 1, 0, 2, Q("48.19 mm")))
sketch9.setExpression("Constraints[8]", "Params.sketch9_height")
pad7 = body.newObject("PartDesign::Pad", "Pad006")
pad7.Profile = sketch9
pad7.setExpression("Length", "Params.pad7_length")
doc.recompute()

mirrored4 = body.newObject("PartDesign::Mirrored", "Mirrored003")
mirrored4.Originals = [pad7]
mirrored4.MirrorPlane = (doc.getObject("XY_Plane"), [""])
body.Tip = mirrored4

doc.recompute()
